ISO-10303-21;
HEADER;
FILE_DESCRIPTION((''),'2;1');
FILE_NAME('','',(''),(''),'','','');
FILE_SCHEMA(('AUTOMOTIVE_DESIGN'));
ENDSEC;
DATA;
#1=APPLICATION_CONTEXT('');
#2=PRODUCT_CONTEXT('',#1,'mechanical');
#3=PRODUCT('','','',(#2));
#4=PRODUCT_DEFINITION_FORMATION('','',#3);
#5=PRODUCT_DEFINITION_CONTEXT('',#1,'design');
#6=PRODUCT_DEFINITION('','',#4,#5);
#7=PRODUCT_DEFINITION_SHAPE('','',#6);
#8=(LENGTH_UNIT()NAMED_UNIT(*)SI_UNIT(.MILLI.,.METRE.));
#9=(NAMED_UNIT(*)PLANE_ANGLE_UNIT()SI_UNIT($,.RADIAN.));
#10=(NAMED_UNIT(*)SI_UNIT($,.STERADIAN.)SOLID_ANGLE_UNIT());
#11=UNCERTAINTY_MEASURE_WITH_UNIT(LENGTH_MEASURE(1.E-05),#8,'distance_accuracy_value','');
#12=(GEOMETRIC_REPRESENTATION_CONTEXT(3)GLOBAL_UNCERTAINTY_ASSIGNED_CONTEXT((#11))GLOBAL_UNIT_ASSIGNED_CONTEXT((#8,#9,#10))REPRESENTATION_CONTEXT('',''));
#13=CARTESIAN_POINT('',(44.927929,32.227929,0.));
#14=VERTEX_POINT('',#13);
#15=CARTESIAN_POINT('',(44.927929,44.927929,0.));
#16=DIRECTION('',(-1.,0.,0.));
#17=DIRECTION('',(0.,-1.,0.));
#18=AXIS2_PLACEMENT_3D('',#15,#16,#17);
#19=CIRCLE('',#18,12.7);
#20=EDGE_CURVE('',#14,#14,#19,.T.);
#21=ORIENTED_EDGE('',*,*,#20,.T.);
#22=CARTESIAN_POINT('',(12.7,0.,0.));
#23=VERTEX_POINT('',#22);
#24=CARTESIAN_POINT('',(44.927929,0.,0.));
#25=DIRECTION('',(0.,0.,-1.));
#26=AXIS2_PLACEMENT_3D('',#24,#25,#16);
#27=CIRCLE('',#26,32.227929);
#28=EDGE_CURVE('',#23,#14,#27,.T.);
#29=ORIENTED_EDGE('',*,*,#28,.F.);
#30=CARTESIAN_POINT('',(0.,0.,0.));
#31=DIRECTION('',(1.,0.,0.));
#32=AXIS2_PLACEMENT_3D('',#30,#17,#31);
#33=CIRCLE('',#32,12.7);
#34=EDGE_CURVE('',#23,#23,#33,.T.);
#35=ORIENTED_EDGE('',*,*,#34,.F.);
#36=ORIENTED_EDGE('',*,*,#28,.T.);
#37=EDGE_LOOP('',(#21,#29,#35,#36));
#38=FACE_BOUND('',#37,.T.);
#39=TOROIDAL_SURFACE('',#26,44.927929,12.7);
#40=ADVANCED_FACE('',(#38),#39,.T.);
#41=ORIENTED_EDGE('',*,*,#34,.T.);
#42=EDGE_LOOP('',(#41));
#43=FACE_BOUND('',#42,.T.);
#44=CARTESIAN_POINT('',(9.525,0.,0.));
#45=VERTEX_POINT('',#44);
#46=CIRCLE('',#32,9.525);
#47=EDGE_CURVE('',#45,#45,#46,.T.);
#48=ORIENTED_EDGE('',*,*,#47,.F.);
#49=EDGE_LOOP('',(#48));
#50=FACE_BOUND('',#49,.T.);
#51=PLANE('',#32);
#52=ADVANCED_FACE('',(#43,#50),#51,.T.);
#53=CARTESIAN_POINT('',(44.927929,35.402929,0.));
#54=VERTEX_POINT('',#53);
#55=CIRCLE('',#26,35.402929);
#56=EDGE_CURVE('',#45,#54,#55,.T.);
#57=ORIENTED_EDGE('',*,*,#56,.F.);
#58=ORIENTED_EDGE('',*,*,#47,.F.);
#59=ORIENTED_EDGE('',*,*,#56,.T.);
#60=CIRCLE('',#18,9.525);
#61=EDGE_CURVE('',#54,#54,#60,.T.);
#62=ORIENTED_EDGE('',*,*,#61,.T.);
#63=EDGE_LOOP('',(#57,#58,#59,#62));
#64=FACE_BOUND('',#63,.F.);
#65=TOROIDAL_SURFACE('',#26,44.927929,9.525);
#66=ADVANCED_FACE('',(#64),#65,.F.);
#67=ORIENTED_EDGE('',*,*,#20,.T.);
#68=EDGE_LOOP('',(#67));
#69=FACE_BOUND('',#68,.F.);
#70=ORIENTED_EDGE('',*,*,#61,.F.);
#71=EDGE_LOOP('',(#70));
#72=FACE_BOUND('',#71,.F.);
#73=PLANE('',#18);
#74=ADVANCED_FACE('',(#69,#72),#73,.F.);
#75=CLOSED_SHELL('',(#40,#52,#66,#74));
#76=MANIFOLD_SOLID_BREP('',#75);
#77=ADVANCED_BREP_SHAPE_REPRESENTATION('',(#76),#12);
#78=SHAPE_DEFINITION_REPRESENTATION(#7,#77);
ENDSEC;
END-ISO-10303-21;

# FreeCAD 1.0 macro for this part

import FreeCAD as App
import Part
import Sketcher
from FreeCAD import Vector
Q = App.Units.Quantity

doc = App.newDocument("Part")
body = doc.addObject("PartDesign::Body", "Body")

sketch1 = body.newObject("Sketcher::SketchObject", "Sketch")
sketch1.AttachmentSupport = (doc.getObject("XZ_Plane"), [""])
sketch1.MapMode = "FlatFace"
sketch1.addGeometry(Part.Circle(Vector(0, 0, 0), Vector(0, 0, 1), 12.7), False)
sketch1.addGeometry(Part.Circle(Vector(0, 0, 0), Vector(0, 0, 1), 9.525), False)
sketch1.addGeometry(Part.LineSegment(Vector(44.927929, 0, 0), Vector(44.927929, -10, 0)), True)
sketch1.addConstraint(Sketcher.Constraint("Vertical", 2))
sketch1.addConstraint(Sketcher.Constraint("Coincident", 0, 3, -1, 1))
sketch1.addConstraint(Sketcher.Constraint("Coincident", 1, 3, -1, 1))
sketch1.addConstraint(Sketcher.Constraint("PointOnObject", 2, 1, -1))
sketch1.addConstraint(Sketcher.Constraint("Diameter", 0, Q("1 in")))
sketch1.addConstraint(Sketcher.Constraint("Diameter", 1, Q("0.75 in")))
sketch1.addConstraint(Sketcher.Constraint("DistanceY", 2, 2, 2, 1, Q("10 mm")))
sketch1.addConstraint(Sketcher.Constraint("DistanceX", -1, 1, 2, 1, Q("44.927929 mm")))
revolution = body.newObject("PartDesign::Revolution", "Revolution")
revolution.Profile = sketch1
revolution.ReferenceAxis = (sketch1, ["Axis0"])
revolution.Angle = 90

doc.recompute()
